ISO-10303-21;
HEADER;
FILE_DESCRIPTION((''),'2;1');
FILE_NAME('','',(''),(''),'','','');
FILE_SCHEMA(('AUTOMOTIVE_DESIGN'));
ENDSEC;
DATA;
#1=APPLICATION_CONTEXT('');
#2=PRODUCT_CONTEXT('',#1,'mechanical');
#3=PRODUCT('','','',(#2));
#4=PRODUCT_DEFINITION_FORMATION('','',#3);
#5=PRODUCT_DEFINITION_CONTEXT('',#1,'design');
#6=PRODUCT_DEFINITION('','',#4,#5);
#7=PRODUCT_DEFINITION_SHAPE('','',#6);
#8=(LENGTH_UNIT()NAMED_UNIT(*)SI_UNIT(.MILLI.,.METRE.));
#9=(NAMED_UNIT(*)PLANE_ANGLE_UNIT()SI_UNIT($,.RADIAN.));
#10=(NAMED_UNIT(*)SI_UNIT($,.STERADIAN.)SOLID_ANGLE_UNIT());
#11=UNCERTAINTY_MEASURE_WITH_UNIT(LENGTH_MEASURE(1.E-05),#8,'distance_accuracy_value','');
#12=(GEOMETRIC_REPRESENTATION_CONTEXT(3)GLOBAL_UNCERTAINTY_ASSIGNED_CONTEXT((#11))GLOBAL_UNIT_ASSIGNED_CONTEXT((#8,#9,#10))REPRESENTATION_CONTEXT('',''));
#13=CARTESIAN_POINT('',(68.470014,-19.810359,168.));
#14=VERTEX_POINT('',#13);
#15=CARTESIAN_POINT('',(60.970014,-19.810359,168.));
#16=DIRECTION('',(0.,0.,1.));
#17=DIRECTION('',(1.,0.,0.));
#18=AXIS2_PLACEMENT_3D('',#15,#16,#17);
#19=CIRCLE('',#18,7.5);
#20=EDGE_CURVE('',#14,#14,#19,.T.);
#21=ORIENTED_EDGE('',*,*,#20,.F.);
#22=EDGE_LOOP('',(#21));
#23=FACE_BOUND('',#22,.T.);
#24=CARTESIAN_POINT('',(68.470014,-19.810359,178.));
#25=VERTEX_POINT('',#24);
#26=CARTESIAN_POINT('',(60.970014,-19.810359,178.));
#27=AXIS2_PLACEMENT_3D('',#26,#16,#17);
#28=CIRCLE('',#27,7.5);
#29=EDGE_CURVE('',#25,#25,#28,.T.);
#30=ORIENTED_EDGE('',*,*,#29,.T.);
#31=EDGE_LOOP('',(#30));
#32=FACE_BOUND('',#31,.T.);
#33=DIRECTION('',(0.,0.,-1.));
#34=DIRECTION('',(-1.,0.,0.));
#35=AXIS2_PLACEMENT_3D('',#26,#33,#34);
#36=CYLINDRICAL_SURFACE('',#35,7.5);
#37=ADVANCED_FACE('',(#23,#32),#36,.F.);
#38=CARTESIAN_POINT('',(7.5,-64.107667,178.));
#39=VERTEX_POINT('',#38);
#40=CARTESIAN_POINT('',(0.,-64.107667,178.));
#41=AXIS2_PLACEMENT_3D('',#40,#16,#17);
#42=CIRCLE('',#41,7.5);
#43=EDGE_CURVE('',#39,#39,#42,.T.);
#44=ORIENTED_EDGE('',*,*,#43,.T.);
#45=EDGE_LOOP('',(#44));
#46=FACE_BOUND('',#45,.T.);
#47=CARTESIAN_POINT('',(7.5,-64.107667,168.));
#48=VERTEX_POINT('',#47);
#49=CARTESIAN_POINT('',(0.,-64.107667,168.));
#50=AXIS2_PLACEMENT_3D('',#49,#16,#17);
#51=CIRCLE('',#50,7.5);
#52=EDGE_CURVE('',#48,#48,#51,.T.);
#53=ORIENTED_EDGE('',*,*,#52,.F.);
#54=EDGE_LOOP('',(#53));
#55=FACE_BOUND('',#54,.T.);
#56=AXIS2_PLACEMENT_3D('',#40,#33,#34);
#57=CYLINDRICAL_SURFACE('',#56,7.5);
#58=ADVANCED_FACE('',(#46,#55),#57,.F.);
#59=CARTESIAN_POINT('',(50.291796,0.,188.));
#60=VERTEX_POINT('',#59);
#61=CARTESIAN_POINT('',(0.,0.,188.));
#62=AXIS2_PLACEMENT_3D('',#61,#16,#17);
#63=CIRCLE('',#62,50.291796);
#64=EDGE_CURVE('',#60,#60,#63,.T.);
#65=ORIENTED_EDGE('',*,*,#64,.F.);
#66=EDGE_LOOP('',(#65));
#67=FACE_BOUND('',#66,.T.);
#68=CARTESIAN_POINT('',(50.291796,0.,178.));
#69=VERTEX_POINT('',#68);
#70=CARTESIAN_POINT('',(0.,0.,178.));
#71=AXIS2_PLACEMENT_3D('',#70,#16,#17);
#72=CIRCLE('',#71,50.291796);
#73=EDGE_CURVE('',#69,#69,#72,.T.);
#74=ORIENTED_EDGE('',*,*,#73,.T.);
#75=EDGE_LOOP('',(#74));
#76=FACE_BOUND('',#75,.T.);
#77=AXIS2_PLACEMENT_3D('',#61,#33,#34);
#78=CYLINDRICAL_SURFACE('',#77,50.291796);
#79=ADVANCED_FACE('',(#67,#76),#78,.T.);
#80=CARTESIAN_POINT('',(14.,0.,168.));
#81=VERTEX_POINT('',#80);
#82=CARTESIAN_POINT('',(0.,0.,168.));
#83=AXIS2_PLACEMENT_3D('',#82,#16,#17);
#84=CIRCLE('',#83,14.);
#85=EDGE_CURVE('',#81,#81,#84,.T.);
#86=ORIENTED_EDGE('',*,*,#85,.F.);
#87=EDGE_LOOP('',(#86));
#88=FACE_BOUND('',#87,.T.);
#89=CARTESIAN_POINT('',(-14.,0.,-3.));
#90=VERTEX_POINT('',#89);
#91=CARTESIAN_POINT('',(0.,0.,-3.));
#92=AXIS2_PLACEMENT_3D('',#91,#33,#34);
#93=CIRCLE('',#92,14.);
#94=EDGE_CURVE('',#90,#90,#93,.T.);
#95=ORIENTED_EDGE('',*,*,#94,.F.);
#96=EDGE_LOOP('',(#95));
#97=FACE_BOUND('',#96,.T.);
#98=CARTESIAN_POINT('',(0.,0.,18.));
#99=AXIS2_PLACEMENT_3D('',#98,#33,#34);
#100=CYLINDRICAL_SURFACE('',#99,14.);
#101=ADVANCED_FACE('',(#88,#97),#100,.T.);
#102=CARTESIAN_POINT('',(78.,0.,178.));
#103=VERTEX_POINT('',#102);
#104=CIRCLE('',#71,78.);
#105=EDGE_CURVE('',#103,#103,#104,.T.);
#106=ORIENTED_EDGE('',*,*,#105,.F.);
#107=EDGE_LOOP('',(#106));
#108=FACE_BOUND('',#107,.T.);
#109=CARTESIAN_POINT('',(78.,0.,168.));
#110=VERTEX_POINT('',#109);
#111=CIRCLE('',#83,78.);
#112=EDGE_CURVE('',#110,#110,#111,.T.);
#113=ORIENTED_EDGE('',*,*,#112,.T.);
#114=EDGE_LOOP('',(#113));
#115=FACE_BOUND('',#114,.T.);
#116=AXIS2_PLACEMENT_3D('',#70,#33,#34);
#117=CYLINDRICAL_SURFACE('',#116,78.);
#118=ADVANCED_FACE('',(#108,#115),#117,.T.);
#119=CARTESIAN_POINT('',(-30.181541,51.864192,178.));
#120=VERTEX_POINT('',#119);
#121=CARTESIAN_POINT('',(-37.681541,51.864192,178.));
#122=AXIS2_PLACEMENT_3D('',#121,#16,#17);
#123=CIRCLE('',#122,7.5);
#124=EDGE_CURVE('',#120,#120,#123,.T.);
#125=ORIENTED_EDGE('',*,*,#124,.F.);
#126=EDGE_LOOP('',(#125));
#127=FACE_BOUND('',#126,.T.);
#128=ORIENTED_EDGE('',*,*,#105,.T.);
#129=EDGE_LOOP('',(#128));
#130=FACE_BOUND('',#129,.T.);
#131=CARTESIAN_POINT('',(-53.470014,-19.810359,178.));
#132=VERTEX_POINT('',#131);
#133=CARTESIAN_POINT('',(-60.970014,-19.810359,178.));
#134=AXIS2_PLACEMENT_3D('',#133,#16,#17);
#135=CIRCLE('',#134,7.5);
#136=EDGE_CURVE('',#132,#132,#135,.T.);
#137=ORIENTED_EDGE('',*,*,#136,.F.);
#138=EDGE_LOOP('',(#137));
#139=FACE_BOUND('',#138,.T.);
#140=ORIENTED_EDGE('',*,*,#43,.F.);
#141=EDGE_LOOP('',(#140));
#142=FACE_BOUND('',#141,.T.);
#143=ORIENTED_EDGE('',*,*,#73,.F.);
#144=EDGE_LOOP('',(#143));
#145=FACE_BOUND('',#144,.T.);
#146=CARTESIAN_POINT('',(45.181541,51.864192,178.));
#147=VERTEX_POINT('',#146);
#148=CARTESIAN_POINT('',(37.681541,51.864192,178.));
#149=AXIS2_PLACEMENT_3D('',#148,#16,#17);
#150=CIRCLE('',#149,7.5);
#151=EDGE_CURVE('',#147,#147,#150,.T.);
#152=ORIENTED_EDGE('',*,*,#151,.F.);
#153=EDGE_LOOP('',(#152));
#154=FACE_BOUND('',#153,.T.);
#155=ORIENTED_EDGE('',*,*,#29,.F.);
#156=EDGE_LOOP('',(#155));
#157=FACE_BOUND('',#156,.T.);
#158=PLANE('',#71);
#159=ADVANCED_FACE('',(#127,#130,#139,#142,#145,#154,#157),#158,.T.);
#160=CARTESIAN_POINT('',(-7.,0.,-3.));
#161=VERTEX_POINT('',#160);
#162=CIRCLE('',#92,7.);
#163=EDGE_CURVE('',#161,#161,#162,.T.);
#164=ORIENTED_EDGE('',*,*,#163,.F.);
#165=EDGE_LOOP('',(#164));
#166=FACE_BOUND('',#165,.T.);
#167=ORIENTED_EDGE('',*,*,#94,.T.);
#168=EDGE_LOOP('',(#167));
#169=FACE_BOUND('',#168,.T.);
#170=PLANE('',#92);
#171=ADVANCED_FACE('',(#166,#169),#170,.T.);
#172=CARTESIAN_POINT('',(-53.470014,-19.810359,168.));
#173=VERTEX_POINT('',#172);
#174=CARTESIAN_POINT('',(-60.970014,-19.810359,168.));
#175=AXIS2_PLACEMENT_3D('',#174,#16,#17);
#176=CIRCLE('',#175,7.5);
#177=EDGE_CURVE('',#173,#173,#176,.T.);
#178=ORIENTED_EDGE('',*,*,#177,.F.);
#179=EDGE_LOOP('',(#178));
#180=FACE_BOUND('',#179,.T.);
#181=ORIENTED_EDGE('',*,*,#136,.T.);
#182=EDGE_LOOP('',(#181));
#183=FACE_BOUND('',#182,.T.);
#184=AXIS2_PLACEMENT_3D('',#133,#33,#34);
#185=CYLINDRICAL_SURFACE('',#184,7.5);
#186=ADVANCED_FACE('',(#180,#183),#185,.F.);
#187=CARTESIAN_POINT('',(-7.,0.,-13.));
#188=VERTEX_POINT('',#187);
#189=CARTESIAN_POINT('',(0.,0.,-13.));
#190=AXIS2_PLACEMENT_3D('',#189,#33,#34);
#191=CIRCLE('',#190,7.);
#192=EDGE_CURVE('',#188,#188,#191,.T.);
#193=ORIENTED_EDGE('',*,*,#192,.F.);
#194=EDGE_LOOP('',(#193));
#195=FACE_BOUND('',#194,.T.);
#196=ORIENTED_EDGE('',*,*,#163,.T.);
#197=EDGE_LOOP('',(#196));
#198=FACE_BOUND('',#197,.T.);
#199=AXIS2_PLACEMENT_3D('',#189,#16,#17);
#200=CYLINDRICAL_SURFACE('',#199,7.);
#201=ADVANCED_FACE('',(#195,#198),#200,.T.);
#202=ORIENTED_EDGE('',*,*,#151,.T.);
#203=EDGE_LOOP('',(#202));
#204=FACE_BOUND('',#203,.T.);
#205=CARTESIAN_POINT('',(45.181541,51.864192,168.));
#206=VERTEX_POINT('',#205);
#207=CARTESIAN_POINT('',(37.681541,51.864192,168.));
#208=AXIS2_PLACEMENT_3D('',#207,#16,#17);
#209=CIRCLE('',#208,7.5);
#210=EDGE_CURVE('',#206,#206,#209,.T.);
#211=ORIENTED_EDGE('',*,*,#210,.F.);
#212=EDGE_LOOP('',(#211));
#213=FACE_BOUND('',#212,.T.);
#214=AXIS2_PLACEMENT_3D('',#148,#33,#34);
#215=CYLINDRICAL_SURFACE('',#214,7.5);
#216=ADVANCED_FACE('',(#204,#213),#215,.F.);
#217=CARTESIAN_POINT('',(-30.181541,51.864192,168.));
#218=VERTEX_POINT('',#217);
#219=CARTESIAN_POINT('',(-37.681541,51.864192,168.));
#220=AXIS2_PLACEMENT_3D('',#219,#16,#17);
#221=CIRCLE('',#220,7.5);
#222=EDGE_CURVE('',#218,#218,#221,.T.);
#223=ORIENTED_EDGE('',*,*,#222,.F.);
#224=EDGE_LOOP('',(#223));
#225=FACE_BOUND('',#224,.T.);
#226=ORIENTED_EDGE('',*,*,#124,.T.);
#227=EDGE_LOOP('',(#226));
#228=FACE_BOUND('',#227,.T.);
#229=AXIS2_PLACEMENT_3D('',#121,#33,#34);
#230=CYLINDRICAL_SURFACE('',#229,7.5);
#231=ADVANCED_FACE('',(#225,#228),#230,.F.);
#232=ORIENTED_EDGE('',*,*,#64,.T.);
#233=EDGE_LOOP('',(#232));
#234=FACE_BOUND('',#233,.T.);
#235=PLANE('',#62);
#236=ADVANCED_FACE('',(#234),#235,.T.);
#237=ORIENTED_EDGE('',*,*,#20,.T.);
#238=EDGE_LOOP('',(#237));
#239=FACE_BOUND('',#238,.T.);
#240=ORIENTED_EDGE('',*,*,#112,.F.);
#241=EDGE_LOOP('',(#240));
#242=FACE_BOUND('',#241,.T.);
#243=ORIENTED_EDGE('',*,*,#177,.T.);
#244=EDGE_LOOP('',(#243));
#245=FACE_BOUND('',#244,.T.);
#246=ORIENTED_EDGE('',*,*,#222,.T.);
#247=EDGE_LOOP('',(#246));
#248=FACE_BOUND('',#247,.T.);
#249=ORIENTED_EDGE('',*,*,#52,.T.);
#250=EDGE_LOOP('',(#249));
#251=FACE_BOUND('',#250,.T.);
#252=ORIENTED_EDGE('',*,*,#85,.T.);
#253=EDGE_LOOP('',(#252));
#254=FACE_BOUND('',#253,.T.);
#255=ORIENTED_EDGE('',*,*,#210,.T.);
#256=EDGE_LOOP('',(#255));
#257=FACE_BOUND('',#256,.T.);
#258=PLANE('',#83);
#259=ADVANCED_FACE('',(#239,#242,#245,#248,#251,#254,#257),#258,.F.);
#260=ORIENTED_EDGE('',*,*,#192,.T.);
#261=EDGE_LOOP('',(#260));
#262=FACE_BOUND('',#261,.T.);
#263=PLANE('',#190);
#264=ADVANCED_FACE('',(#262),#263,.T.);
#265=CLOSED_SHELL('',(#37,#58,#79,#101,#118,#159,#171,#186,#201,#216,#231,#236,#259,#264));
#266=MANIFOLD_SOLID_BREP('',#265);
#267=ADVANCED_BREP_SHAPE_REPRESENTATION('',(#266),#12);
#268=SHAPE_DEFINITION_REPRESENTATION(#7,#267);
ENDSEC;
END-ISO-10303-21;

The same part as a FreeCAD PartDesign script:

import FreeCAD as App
import Part
import Sketcher
from FreeCAD import Vector
Q = App.Units.Quantity

doc = App.newDocument("Part")
body = doc.addObject("PartDesign::Body", "Body")

sketch1 = doc.addObject("Sketcher::SketchObject", "Sketch")
body.addObject(sketch1)
sketch1.AttachmentSupport = (doc.XY_Plane, [""])
sketch1.MapMode = "FlatFace"
sketch1.addGeometry(Part.Circle(Vector(0, 0, 0), Vector(0, 0, 1), 14), False)
sketch1.addConstraint([
    Sketcher.Constraint("Coincident", 0, 3, -1, 1),
    Sketcher.Constraint("Diameter", 0, Q("28 mm")),
])
pad1 = doc.addObject("PartDesign::Pad", "Pad")
body.addObject(pad1)
pad1.Profile = sketch1
pad1.Length = 18

sketch2 = doc.addObject("Sketcher::SketchObject", "Sketch001")
body.addObject(sketch2)
sketch2.AttachmentSupport = (doc.XY_Plane, [""])
sketch2.MapMode = "FlatFace"
sketch2.AttachmentOffset = App.Placement(Vector(0, 0, -3), App.Rotation())
sketch2.addGeometry(Part.Circle(Vector(0, 0, 0), Vector(0, 0, 1), 14), False)
sketch2.addConstraint([
    Sketcher.Constraint("Coincident", 0, 3, -1, 1),
    Sketcher.Constraint("Diameter", 0, Q("28 mm")),
])
pad2 = doc.addObject("PartDesign::Pad", "Pad001")
body.addObject(pad2)
pad2.Profile = sketch2
pad2.Length = 3

sketch3 = doc.addObject("Sketcher::SketchObject", "Sketch002")
body.addObject(sketch3)
sketch3.AttachmentSupport = (doc.XY_Plane, [""])
sketch3.MapMode = "FlatFace"
sketch3.AttachmentOffset = App.Placement(Vector(0, 0, 18), App.Rotation())
sketch3.addGeometry(Part.Circle(Vector(0, 0, 0), Vector(0, 0, 1), 14), False)
sketch3.addConstraint([
    Sketcher.Constraint("Coincident", 0, 3, -1, 1),
    Sketcher.Constraint("Diameter", 0, Q("28 mm")),
])
pad3 = doc.addObject("PartDesign::Pad", "Pad002")
body.addObject(pad3)
pad3.Profile = sketch3
pad3.Length = 150

sketch4 = doc.addObject("Sketcher::SketchObject", "Sketch003")
body.addObject(sketch4)
sketch4.AttachmentSupport = (doc.XY_Plane, [""])
sketch4.MapMode = "FlatFace"
sketch4.AttachmentOffset = App.Placement(Vector(0, 0, -3), App.Rotation())
sketch4.addGeometry(Part.Circle(Vector(0, 0, 0), Vector(0, 0, 1), 7), False)
sketch4.addConstraint([
    Sketcher.Constraint("Coincident", 0, 3, -1, 1),
    Sketcher.Constraint("Diameter", 0, Q("14 mm")),
])
pad4 = doc.addObject("PartDesign::Pad", "Pad003")
body.addObject(pad4)
pad4.Profile = sketch4
pad4.Length = 10
pad4.Reversed = True

sketch5 = doc.addObject("Sketcher::SketchObject", "Sketch004")
body.addObject(sketch5)
sketch5.AttachmentSupport = (doc.XY_Plane, [""])
sketch5.MapMode = "FlatFace"
sketch5.AttachmentOffset = App.Placement(Vector(0, 0, 168), App.Rotation())
sketch5.addGeometry([
    Part.Circle(Vector(0, 0, 0), Vector(0, 0, 1), 78),
    Part.Circle(Vector(-61, -20, 0), Vector(0, 0, 1), 8),
    Part.Circle(Vector(0, -64, 0), Vector(0, 0, 1), 8),
    Part.Circle(Vector(61, -20, 0), Vector(0, 0, 1), 8),
    Part.Circle(Vector(-38, 52, 0), Vector(0, 0, 1), 8),
    Part.Circle(Vector(38, 52, 0), Vector(0, 0, 1), 8),
], False)
sketch5.addConstraint([
    Sketcher.Constraint("Coincident", 0, 3, -1, 1),
    Sketcher.Constraint("Equal", 1, 2),
    Sketcher.Constraint("Equal", 2, 3),
    Sketcher.Constraint("Equal", 3, 4),
    Sketcher.Constraint("Equal", 4, 5),
    Sketcher.Constraint("Symmetric", 1, 3, 3, 3, -2),
    Sketcher.Constraint("Symmetric", 4, 3, 5, 3, -2),
    Sketcher.Constraint("PointOnObject", 2, 3, -2),
    Sketcher.Constraint("Diameter", 0, Q("156 mm")),
    Sketcher.Constraint("Diameter", 1, Q("15 mm")),
    Sketcher.Constraint("DistanceY", 1, 3, -1, 1, Q("19.810359 mm")),
    Sketcher.Constraint("DistanceX", 4, 3, -1, 1, Q("37.681541 mm")),
    Sketcher.Constraint("DistanceY", 2, 3, 1, 3, Q("44.297308 mm")),
    Sketcher.Constraint("DistanceX", 1, 3, 3, 3, Q("121.940029 mm")),
    Sketcher.Constraint("DistanceY", 1, 3, 4, 3, Q("71.674551 mm")),
])
pad5 = doc.addObject("PartDesign::Pad", "Pad004")
body.addObject(pad5)
pad5.Profile = sketch5
pad5.Length = 10

sketch6 = doc.addObject("Sketcher::SketchObject", "Sketch005")
body.addObject(sketch6)
sketch6.AttachmentSupport = (doc.XY_Plane, [""])
sketch6.MapMode = "FlatFace"
sketch6.AttachmentOffset = App.Placement(Vector(0, 0, 178), App.Rotation())
sketch6.addGeometry(Part.Circle(Vector(0, 0, 0), Vector(0, 0, 1), 50), False)
sketch6.addConstraint([
    Sketcher.Constraint("Coincident", 0, 3, -1, 1),
    Sketcher.Constraint("Diameter", 0, Q("100.583592 mm")),
])
pad6 = doc.addObject("PartDesign::Pad", "Pad005")
body.addObject(pad6)
pad6.Profile = sketch6
pad6.Length = 10

doc.recompute()
